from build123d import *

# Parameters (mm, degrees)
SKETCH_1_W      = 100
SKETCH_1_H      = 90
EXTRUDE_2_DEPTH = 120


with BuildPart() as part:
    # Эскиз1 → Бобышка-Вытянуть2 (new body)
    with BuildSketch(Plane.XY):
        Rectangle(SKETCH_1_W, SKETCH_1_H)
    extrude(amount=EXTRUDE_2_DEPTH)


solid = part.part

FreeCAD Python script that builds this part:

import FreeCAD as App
import Part
import Sketcher

doc = App.newDocument("Part")
body = doc.addObject("PartDesign::Body", "Body")

# Sketch on XY plane
sketch1 = body.newObject("Sketcher::SketchObject", "Sketch")
sketch1.AttachmentSupport = (doc.getObject("XY_Plane"), [""])
sketch1.MapMode = "FlatFace"
sketch1.addGeometry([
    Part.LineSegment(App.Vector(-50, 45, 0), App.Vector(-50, -45, 0)),
    Part.LineSegment(App.Vector(-50, -45, 0), App.Vector(50, -45, 0)),
    Part.LineSegment(App.Vector(50, -45, 0), App.Vector(50, 45, 0)),
    Part.LineSegment(App.Vector(50, 45, 0), App.Vector(-50, 45, 0)),
], False)
sketch1.addConstraint([
    Sketcher.Constraint("Coincident", 0, 2, 1, 1),
    Sketcher.Constraint("Coincident", 1, 2, 2, 1),
    Sketcher.Constraint("Coincident", 2, 2, 3, 1),
    Sketcher.Constraint("Coincident", 3, 2, 0, 1),
    Sketcher.Constraint("Vertical", 0),
    Sketcher.Constraint("Horizontal", 1),
    Sketcher.Constraint("Vertical", 2),
    Sketcher.Constraint("Horizontal", 3),
    Sketcher.Constraint("Symmetric", 0, 2, 2, 2, -1, 1),
    Sketcher.Constraint("DistanceX", 1, 1, 1, 2, 100.0),
    Sketcher.Constraint("DistanceY", 0, 2, 0, 1, 90.0),
])
pad1 = body.newObject("PartDesign::Pad", "Pad")
pad1.Profile = sketch1
pad1.Length = 120

doc.recompute()
